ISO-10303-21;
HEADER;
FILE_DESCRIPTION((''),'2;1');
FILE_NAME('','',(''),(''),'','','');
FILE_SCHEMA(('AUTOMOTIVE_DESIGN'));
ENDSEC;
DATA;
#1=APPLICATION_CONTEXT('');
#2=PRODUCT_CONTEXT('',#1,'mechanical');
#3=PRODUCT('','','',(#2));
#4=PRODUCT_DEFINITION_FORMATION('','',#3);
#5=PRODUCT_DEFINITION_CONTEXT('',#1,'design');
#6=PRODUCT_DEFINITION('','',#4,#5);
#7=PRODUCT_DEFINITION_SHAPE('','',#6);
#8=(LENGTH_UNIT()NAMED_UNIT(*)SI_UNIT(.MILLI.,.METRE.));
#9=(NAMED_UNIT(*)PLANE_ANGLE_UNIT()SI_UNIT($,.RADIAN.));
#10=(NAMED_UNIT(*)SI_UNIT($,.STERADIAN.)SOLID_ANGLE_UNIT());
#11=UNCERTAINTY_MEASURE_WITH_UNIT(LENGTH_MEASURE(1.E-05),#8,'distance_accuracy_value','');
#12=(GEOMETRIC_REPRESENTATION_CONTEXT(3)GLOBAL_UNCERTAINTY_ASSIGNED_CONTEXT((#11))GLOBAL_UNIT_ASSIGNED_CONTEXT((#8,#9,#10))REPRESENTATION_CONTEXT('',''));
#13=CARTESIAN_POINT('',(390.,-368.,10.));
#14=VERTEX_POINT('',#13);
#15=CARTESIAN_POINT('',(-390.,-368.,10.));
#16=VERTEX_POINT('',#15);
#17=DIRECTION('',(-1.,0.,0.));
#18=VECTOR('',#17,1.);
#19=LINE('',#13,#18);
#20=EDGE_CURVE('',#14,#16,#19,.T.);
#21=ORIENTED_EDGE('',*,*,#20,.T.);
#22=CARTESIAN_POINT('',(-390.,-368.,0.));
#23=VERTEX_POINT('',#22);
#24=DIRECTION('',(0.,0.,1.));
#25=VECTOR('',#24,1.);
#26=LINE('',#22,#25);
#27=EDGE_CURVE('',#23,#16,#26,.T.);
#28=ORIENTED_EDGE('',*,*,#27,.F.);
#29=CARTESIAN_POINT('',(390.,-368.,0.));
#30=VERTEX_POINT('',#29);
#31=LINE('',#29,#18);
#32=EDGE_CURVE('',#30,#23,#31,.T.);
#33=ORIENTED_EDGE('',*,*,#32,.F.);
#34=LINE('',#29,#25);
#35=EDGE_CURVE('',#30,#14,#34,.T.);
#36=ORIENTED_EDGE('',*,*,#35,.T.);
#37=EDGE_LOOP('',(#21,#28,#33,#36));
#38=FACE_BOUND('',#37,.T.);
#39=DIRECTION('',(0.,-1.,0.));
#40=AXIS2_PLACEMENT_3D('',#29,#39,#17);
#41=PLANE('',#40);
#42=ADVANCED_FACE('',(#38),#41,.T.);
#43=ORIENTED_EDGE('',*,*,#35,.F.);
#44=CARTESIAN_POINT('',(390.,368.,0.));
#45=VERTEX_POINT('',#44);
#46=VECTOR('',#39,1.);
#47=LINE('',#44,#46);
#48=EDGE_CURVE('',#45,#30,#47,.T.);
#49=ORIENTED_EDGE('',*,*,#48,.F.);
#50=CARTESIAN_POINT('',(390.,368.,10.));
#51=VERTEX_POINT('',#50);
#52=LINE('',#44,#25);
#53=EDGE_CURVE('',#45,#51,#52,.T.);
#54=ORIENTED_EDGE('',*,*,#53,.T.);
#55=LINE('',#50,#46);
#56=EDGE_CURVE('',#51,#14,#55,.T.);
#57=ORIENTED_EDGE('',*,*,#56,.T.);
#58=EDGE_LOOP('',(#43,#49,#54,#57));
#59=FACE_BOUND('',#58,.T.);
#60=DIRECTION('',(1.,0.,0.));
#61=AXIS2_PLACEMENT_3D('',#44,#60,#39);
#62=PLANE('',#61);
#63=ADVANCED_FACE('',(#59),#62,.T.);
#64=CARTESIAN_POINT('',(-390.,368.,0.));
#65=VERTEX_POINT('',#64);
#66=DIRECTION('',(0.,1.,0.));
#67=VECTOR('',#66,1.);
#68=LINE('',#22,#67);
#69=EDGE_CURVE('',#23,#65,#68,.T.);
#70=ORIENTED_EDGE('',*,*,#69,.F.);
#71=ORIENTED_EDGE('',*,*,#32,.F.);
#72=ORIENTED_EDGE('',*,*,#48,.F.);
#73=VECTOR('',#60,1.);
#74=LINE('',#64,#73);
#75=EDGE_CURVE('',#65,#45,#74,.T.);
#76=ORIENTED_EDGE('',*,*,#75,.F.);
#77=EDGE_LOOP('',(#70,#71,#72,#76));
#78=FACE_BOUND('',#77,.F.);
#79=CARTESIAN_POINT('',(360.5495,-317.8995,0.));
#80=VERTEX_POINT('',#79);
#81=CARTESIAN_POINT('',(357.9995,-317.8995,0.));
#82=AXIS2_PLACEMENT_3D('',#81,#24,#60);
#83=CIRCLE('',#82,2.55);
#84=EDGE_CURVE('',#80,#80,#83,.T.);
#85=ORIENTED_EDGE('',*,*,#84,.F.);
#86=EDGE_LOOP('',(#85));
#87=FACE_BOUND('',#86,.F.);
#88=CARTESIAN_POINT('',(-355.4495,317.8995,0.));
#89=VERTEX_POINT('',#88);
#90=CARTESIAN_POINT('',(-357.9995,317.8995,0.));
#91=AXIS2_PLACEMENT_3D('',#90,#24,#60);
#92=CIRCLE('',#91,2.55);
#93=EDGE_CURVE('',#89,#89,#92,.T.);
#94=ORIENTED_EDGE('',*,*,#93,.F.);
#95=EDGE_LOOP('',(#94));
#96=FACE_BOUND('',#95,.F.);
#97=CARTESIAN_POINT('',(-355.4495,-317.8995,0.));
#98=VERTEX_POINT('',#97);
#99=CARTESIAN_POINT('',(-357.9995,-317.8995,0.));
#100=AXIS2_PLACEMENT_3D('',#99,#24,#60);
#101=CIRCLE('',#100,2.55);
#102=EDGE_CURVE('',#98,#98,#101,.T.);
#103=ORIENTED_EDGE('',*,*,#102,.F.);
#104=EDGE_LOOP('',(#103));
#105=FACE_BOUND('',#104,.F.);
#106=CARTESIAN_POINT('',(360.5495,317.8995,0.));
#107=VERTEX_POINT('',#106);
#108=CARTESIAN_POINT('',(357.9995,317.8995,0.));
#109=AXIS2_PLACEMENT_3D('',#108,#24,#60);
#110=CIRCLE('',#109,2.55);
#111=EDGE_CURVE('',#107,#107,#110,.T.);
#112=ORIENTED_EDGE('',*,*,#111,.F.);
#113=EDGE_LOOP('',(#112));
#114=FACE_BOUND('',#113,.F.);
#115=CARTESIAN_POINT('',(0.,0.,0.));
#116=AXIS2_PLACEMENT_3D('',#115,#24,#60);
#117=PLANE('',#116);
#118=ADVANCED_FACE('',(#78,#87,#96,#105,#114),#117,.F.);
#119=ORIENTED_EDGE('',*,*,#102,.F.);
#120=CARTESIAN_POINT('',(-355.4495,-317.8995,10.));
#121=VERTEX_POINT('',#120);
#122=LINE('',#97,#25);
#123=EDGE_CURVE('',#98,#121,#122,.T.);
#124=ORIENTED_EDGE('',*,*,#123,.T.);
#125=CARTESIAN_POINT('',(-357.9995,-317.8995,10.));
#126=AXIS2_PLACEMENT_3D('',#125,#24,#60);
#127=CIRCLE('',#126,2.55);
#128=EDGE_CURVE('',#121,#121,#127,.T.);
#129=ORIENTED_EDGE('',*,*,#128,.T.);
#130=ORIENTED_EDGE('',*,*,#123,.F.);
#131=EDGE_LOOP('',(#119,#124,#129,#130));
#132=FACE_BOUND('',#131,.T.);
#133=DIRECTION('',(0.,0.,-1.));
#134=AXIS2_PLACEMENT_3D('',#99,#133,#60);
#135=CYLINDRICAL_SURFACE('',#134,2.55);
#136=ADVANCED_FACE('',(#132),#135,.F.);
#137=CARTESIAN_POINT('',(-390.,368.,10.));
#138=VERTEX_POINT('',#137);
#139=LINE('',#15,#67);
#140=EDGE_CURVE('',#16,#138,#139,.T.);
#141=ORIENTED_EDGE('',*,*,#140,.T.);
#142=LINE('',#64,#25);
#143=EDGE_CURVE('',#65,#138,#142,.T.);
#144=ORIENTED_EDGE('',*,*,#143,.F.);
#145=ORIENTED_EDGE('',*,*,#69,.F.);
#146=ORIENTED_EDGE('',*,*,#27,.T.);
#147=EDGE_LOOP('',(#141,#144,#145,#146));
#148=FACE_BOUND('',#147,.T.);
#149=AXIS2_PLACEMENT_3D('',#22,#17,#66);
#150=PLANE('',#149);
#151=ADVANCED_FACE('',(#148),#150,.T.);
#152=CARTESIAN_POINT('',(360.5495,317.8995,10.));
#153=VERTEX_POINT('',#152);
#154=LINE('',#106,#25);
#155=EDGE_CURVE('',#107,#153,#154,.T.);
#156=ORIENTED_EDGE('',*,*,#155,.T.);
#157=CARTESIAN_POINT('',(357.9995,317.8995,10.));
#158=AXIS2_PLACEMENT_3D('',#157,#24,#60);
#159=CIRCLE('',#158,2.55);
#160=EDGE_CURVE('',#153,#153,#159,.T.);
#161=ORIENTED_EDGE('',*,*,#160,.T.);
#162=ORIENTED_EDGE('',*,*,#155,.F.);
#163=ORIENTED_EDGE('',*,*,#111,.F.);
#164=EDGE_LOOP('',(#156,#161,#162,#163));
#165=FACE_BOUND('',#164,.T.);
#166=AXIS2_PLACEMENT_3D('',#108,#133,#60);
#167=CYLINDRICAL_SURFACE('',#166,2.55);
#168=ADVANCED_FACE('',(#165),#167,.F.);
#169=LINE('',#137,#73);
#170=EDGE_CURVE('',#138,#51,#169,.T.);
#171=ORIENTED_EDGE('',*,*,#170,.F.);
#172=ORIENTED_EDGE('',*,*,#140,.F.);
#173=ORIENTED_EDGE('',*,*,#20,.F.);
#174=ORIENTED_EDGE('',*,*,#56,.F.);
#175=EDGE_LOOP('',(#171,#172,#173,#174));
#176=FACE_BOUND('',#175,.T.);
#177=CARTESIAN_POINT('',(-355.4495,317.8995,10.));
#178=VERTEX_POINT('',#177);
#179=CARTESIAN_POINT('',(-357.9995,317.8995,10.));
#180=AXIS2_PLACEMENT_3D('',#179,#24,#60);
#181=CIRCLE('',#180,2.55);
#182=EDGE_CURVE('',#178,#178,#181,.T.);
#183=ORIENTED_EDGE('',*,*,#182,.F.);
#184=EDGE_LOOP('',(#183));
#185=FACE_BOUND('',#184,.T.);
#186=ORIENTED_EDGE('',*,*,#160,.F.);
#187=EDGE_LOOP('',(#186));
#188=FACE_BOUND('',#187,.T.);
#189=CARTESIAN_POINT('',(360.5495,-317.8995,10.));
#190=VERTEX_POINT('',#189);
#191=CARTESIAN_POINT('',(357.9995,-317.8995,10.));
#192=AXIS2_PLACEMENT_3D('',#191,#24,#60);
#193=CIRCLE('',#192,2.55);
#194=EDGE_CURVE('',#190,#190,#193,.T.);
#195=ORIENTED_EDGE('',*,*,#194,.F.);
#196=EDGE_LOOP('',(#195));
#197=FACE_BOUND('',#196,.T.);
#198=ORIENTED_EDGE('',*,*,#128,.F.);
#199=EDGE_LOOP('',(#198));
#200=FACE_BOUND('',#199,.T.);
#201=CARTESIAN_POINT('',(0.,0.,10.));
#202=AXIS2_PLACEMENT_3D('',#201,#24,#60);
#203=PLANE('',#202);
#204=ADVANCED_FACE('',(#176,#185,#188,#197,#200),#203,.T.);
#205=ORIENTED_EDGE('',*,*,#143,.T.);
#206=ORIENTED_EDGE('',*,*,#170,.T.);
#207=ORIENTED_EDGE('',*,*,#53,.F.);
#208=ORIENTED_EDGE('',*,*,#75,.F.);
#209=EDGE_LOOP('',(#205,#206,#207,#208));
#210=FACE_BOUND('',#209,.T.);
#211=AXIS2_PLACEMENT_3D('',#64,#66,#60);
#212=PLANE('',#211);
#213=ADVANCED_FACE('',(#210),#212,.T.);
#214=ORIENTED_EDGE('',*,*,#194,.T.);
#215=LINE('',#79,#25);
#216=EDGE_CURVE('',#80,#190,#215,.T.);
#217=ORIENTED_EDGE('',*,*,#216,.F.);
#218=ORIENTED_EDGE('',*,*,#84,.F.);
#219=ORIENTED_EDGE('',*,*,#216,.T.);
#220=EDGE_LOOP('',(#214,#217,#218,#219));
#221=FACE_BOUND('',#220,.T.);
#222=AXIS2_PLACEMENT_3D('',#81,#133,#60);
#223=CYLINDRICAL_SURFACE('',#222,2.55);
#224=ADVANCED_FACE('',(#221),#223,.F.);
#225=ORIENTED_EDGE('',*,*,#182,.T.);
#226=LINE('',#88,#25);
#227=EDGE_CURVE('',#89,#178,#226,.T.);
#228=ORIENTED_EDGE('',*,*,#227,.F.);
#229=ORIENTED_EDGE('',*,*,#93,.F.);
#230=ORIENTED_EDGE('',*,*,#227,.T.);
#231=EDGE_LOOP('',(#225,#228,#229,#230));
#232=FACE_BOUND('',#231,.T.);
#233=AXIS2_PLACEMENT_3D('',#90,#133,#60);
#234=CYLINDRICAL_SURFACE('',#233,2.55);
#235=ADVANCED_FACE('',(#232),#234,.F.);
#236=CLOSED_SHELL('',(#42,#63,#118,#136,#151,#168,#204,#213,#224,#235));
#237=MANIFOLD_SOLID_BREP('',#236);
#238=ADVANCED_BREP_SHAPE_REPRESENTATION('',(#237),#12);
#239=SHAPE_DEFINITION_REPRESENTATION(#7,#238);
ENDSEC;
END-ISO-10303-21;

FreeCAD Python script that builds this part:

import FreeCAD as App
import Part
import Sketcher

doc = App.newDocument("Part")
body = doc.addObject("PartDesign::Body", "Body")

# Sketch on XY plane
sketch1 = doc.addObject("Sketcher::SketchObject", "Sketch")
body.addObject(sketch1)
sketch1.AttachmentSupport = (doc.XY_Plane, [""])
sketch1.MapMode = "FlatFace"
sketch1.addGeometry([
    Part.LineSegment(App.Vector(390, 368, 0), App.Vector(-390, 368, 0)),  # 0
    Part.LineSegment(App.Vector(-390, 368, 0), App.Vector(-390, -368, 0)),  # 1
    Part.LineSegment(App.Vector(-390, -368, 0), App.Vector(390, -368, 0)),  # 2
    Part.LineSegment(App.Vector(390, -368, 0), App.Vector(390, 368, 0)),  # 3
    Part.Circle(App.Vector(-358, -317.9, 0), App.Vector(0, 0, 1), 2.5),  # 4
    Part.Circle(App.Vector(358, -317.9, 0), App.Vector(0, 0, 1), 2.5),  # 5
    Part.Circle(App.Vector(-358, 317.9, 0), App.Vector(0, 0, 1), 2.5),  # 6
    Part.Circle(App.Vector(358, 317.9, 0), App.Vector(0, 0, 1), 2.5),  # 7
], False)
sketch1.addConstraint([
    Sketcher.Constraint("Coincident", 0, 2, 1, 1),
    Sketcher.Constraint("Coincident", 1, 2, 2, 1),
    Sketcher.Constraint("Coincident", 2, 2, 3, 1),
    Sketcher.Constraint("Coincident", 3, 2, 0, 1),
    Sketcher.Constraint("Horizontal", 0),
    Sketcher.Constraint("Vertical", 1),
    Sketcher.Constraint("Horizontal", 2),
    Sketcher.Constraint("Vertical", 3),
    Sketcher.Constraint("Equal", 4, 5),
    Sketcher.Constraint("Equal", 5, 6),
    Sketcher.Constraint("Equal", 6, 7),
    Sketcher.Constraint("Symmetric", 5, 3, 6, 3, -1, 1),
    Sketcher.Constraint("Symmetric", 4, 3, 7, 3, -1, 1),
    Sketcher.Constraint("Symmetric", 0, 2, 2, 2, -1, 1),
    Sketcher.Constraint("Symmetric", 4, 3, 5, 3, -2),
    Sketcher.Constraint("Diameter", 4, 5.1),
    Sketcher.Constraint("DistanceX", 0, 2, 0, 1, 780.0),
    Sketcher.Constraint("DistanceY", 1, 2, 1, 1, 736.0),
    Sketcher.Constraint("DistanceX", 4, 3, 5, 3, 715.999),
    Sketcher.Constraint("DistanceY", 4, 3, -1, 1, 317.8995),
])
pad1 = doc.addObject("PartDesign::Pad", "Pad")
body.addObject(pad1)
pad1.Profile = sketch1
pad1.Length = 10

doc.recompute()
